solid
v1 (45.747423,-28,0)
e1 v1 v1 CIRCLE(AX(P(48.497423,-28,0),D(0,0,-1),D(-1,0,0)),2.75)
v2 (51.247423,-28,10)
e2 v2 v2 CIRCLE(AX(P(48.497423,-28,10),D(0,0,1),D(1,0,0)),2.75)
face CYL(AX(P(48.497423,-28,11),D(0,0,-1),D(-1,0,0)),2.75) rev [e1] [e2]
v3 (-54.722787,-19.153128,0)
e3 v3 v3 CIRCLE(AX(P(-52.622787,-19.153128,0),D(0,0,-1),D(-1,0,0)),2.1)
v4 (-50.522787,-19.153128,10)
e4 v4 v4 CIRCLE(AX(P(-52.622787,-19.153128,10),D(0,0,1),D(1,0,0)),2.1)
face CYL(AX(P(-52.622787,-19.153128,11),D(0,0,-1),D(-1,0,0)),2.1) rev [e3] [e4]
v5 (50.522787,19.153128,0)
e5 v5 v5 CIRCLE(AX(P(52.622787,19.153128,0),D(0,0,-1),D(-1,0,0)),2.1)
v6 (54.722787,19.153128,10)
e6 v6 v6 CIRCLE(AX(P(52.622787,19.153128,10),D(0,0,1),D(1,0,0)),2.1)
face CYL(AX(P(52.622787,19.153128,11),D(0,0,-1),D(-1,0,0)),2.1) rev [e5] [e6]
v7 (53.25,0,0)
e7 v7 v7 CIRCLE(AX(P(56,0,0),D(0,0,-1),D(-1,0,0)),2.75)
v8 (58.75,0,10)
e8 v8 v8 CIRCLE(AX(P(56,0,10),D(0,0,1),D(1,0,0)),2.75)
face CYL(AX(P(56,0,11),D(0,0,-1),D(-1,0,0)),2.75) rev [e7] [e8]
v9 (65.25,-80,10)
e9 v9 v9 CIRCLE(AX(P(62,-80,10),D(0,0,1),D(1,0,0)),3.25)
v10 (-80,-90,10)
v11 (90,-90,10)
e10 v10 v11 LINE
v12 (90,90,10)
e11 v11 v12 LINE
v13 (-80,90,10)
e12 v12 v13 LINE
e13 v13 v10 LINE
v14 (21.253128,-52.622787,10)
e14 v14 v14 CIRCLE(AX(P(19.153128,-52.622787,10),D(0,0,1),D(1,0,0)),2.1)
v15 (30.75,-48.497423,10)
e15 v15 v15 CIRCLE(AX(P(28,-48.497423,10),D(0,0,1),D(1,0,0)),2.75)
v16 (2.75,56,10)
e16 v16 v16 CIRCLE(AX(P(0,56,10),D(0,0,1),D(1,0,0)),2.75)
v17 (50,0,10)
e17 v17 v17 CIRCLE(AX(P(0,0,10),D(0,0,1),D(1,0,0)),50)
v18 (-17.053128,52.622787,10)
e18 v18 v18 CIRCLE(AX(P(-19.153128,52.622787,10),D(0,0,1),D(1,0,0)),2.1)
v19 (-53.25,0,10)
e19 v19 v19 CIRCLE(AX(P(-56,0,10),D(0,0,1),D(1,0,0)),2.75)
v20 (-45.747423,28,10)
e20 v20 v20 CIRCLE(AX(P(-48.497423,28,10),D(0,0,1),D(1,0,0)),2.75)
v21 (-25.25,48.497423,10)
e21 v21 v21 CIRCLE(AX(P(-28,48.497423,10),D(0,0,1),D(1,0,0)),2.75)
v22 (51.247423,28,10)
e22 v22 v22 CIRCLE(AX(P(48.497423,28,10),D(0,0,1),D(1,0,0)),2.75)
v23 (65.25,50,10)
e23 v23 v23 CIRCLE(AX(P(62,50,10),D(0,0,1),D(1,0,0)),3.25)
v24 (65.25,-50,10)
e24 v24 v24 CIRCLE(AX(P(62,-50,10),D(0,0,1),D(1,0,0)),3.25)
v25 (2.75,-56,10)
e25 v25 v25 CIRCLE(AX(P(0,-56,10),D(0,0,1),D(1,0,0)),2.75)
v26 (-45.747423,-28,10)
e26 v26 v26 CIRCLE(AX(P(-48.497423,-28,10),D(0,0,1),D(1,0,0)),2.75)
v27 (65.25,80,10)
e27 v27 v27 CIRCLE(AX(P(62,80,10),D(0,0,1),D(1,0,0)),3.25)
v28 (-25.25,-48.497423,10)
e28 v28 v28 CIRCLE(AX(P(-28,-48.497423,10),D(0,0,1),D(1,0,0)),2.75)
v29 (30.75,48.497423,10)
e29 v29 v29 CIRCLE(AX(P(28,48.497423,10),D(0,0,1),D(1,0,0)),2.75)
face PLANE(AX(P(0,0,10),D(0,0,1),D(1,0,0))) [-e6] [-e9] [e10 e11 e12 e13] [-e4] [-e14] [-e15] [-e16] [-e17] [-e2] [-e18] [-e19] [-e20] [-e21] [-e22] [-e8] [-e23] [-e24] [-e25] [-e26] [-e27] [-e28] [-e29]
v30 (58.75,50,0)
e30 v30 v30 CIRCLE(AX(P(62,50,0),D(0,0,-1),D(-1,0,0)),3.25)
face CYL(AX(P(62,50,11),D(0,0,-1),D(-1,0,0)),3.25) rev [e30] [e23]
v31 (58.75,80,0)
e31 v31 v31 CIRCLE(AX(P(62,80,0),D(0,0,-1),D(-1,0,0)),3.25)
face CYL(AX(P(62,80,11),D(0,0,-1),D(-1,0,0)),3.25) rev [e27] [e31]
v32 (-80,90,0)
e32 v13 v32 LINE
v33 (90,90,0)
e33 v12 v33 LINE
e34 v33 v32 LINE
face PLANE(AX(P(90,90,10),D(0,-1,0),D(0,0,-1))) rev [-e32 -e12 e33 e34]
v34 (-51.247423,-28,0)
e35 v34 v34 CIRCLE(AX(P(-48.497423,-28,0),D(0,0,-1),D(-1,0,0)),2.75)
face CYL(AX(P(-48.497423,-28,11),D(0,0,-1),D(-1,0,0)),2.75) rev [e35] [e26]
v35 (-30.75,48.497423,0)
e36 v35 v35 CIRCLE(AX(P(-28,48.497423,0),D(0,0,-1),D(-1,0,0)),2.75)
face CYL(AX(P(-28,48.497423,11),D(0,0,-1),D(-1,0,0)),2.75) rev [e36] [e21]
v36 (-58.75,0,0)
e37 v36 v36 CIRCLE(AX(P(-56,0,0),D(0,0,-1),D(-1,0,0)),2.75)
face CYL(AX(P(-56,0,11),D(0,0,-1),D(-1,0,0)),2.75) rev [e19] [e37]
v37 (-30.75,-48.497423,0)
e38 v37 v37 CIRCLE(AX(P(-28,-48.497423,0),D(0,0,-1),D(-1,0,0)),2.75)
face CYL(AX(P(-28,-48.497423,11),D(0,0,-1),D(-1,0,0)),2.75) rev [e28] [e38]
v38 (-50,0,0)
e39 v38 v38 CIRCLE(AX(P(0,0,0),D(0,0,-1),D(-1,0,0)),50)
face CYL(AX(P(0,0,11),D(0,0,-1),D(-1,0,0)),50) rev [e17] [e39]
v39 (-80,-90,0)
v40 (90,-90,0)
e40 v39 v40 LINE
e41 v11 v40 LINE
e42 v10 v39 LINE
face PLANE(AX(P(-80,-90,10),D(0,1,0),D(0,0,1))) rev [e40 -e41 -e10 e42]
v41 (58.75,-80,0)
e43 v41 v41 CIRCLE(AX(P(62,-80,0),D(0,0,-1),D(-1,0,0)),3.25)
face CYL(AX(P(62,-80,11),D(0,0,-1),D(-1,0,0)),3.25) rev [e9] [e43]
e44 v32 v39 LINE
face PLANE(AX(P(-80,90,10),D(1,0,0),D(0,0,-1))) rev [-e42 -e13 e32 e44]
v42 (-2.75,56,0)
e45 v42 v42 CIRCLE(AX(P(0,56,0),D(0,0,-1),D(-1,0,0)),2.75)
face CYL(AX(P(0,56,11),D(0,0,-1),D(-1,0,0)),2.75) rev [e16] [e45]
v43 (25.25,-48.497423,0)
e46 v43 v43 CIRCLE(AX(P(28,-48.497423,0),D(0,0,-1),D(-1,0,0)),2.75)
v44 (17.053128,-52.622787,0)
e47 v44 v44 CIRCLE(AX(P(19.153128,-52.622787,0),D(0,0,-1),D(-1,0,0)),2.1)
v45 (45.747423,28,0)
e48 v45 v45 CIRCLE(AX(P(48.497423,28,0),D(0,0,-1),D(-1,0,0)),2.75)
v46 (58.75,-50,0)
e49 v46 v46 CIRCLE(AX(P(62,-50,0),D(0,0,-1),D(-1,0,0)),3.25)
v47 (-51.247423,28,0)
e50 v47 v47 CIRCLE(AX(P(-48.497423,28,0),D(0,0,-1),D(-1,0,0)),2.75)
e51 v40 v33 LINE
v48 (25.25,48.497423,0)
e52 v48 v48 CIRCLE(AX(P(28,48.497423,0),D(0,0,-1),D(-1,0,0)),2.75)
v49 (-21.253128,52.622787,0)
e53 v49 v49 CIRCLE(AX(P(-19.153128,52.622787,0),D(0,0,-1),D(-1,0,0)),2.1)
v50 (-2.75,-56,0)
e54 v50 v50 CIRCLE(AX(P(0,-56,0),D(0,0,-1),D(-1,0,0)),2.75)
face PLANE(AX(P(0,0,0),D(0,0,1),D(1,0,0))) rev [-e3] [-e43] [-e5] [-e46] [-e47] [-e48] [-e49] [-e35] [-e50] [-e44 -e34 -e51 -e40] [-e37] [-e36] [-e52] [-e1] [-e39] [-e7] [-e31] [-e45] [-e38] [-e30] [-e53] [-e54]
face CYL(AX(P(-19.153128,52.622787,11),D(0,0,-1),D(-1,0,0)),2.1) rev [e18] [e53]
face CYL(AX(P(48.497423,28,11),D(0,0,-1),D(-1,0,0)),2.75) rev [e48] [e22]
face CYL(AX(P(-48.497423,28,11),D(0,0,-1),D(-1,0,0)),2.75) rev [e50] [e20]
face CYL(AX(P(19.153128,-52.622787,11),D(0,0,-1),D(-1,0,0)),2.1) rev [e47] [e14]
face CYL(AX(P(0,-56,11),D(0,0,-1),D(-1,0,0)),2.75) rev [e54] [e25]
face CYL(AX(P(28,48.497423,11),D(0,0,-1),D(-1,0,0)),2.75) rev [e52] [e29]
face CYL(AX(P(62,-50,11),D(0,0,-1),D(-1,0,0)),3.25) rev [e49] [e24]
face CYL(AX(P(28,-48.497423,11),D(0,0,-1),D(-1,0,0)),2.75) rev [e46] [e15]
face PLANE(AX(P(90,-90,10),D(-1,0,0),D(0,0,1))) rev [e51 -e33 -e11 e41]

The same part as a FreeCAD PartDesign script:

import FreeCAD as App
import Part
import Sketcher
Q = App.Units.Quantity


def add_polygon(sketch, points):
    """Adds a closed chain of lines whose ends are joined by coincident constraints."""
    first, n = sketch.GeometryCount, len(points)
    for a, b in zip(points, points[1:] + points[:1]):
        sketch.addGeometry(Part.LineSegment(App.Vector(*a, 0), App.Vector(*b, 0)), False)
    for i in range(n):
        sketch.addConstraint(Sketcher.Constraint("Coincident", first + i, 2, first + (i + 1) % n, 1))

doc = App.newDocument("Part")
params = doc.addObject("Spreadsheet::Sheet", "Params")
for row, (alias, value) in enumerate([
    ("sketch1_width", "170 mm"),
    ("sketch1_height", "180 mm"),
    ("pad1_length", "10 mm"),
    ("sketch2_diameter", "100 mm"),
    ("sketch2_diameter2", "5.5 mm"),
    ("sketch2_diameter3", "4.2 mm"),
    ("sketch2_diameter4", "6.5 mm"),
    ("pocket1_length", "11 mm"),
], start=1):
    params.set(f"A{row}", alias)
    params.set(f"B{row}", "=" + value)
    params.setAlias(f"B{row}", alias)

body = doc.addObject("PartDesign::Body", "Body")

sketch1 = body.newObject("Sketcher::SketchObject", "Sketch")
sketch1.AttachmentSupport = (doc.getObject("XY_Plane"), [""])
sketch1.MapMode = "FlatFace"
add_polygon(sketch1, [(-80, 90), (-80, -90), (90, -90), (90, 90)])
sketch1.addConstraint(Sketcher.Constraint("Vertical", 0))
sketch1.addConstraint(Sketcher.Constraint("Horizontal", 1))
sketch1.addConstraint(Sketcher.Constraint("Vertical", 2))
sketch1.addConstraint(Sketcher.Constraint("Horizontal", 3))
sketch1.addConstraint(Sketcher.Constraint("DistanceX", 1, 1, 1, 2, Q("170 mm")))
sketch1.addConstraint(Sketcher.Constraint("DistanceY", 0, 2, 0, 1, Q("180 mm")))
sketch1.addConstraint(Sketcher.Constraint("DistanceX", 0, 2, -1, 1, Q("80 mm")))
sketch1.addConstraint(Sketcher.Constraint("DistanceY", 0, 2, -1, 1, Q("90 mm")))
sketch1.setExpression("Constraints[8]", "Params.sketch1_width")
sketch1.setExpression("Constraints[9]", "Params.sketch1_height")
pad1 = body.newObject("PartDesign::Pad", "Pad")
pad1.Profile = sketch1
pad1.setExpression("Length", "Params.pad1_length")

sketch2 = body.newObject("Sketcher::SketchObject", "Sketch001")
sketch2.AttachmentSupport = (doc.getObject("XY_Plane"), [""])
sketch2.MapMode = "FlatFace"
sketch2.addGeometry(Part.Circle(App.Vector(0, 0, 0), App.Vector(0, 0, 1), 50), False)
sketch2.addGeometry(Part.Circle(App.Vector(56, 0, 0), App.Vector(0, 0, 1), 2.75), False)
sketch2.addGeometry(Part.Circle(App.Vector(48.497423, 28, 0), App.Vector(0, 0, 1), 2.75), False)
sketch2.addGeometry(Part.Circle(App.Vector(28, 48.497423, 0), App.Vector(0, 0, 1), 2.75), False)
sketch2.addGeometry(Part.Circle(App.Vector(0, 56, 0), App.Vector(0, 0, 1), 2.75), False)
sketch2.addGeometry(Part.Circle(App.Vector(-28, 48.497423, 0), App.Vector(0, 0, 1), 2.75), False)
sketch2.addGeometry(Part.Circle(App.Vector(-48.497423, 28, 0), App.Vector(0, 0, 1), 2.75), False)
sketch2.addGeometry(Part.Circle(App.Vector(-56, 0, 0), App.Vector(0, 0, 1), 2.75), False)
sketch2.addGeometry(Part.Circle(App.Vector(-48.497423, -28, 0), App.Vector(0, 0, 1), 2.75), False)
sketch2.addGeometry(Part.Circle(App.Vector(-28, -48.497423, 0), App.Vector(0, 0, 1), 2.75), False)
sketch2.addGeometry(Part.Circle(App.Vector(0, -56, 0), App.Vector(0, 0, 1), 2.75), False)
sketch2.addGeometry(Part.Circle(App.Vector(28, -48.497423, 0), App.Vector(0, 0, 1), 2.75), False)
sketch2.addGeometry(Part.Circle(App.Vector(48.497423, -28, 0), App.Vector(0, 0, 1), 2.75), False)
sketch2.addGeometry(Part.Circle(App.Vector(52.622787, 19.153128, 0), App.Vector(0, 0, 1), 2.1), False)
sketch2.addGeometry(Part.Circle(App.Vector(-19.153128, 52.622787, 0), App.Vector(0, 0, 1), 2.1), False)
sketch2.addGeometry(Part.Circle(App.Vector(-52.622787, -19.153128, 0), App.Vector(0, 0, 1), 2.1), False)
sketch2.addGeometry(Part.Circle(App.Vector(19.153128, -52.622787, 0), App.Vector(0, 0, 1), 2.1), False)
sketch2.addGeometry(Part.Circle(App.Vector(62, -80, 0), App.Vector(0, 0, 1), 3.25), False)
sketch2.addGeometry(Part.Circle(App.Vector(62, -50, 0), App.Vector(0, 0, 1), 3.25), False)
sketch2.addGeometry(Part.Circle(App.Vector(62, 50, 0), App.Vector(0, 0, 1), 3.25), False)
sketch2.addGeometry(Part.Circle(App.Vector(62, 80, 0), App.Vector(0, 0, 1), 3.25), False)
sketch2.addConstraint(Sketcher.Constraint("Coincident", 0, 3, -1, 1))
sketch2.addConstraint(Sketcher.Constraint("Equal", 1, 2))
sketch2.addConstraint(Sketcher.Constraint("Equal", 2, 3))
sketch2.addConstraint(Sketcher.Constraint("Equal", 3, 4))
sketch2.addConstraint(Sketcher.Constraint("Equal", 4, 5))
sketch2.addConstraint(Sketcher.Constraint("Equal", 5, 6))
sketch2.addConstraint(Sketcher.Constraint("Equal", 6, 7))
sketch2.addConstraint(Sketcher.Constraint("Equal", 7, 8))
sketch2.addConstraint(Sketcher.Constraint("Equal", 8, 9))
sketch2.addConstraint(Sketcher.Constraint("Equal", 9, 10))
sketch2.addConstraint(Sketcher.Constraint("Equal", 10, 11))
sketch2.addConstraint(Sketcher.Constraint("Equal", 11, 12))
sketch2.addConstraint(Sketcher.Constraint("Equal", 13, 14))
sketch2.addConstraint(Sketcher.Constraint("Equal", 14, 15))
sketch2.addConstraint(Sketcher.Constraint("Equal", 15, 16))
sketch2.addConstraint(Sketcher.Constraint("Equal", 17, 18))
sketch2.addConstraint(Sketcher.Constraint("Equal", 18, 19))
sketch2.addConstraint(Sketcher.Constraint("Equal", 19, 20))
sketch2.addConstraint(Sketcher.Constraint("Symmetric", 1, 3, 7, 3, -1, 1))
sketch2.addConstraint(Sketcher.Constraint("Symmetric", 2, 3, 8, 3, -1, 1))
sketch2.addConstraint(Sketcher.Constraint("Symmetric", 3, 3, 9, 3, -1, 1))
sketch2.addConstraint(Sketcher.Constraint("Symmetric", 4, 3, 10, 3, -1, 1))
sketch2.addConstraint(Sketcher.Constraint("Symmetric", 5, 3, 11, 3, -1, 1))
sketch2.addConstraint(Sketcher.Constraint("Symmetric", 6, 3, 12, 3, -1, 1))
sketch2.addConstraint(Sketcher.Constraint("Symmetric", 13, 3, 15, 3, -1, 1))
sketch2.addConstraint(Sketcher.Constraint("Symmetric", 14, 3, 16, 3, -1, 1))
sketch2.addConstraint(Sketcher.Constraint("Symmetric", 3, 3, 5, 3, -2))
sketch2.addConstraint(Sketcher.Constraint("Symmetric", 2, 3, 6, 3, -2))
sketch2.addConstraint(Sketcher.Constraint("Symmetric", 18, 3, 19, 3, -1))
sketch2.addConstraint(Sketcher.Constraint("Symmetric", 17, 3, 20, 3, -1))
sketch2.addConstraint(Sketcher.Constraint("PointOnObject", 1, 3, -1))
sketch2.addConstraint(Sketcher.Constraint("PointOnObject", 4, 3, -2))
sketch2.addConstraint(Sketcher.Constraint("Vertical", 17, 3, 18, 3))
sketch2.addConstraint(Sketcher.Constraint("Diameter", 0, Q("100 mm")))
sketch2.addConstraint(Sketcher.Constraint("Diameter", 1, Q("5.5 mm")))
sketch2.addConstraint(Sketcher.Constraint("Diameter", 13, Q("4.2 mm")))
sketch2.addConstraint(Sketcher.Constraint("Diameter", 17, Q("6.5 mm")))
sketch2.addConstraint(Sketcher.Constraint("DistanceX", -1, 1, 1, 3, Q("56 mm")))
sketch2.addConstraint(Sketcher.Constraint("DistanceY", -1, 1, 2, 3, Q("28 mm")))
sketch2.addConstraint(Sketcher.Constraint("DistanceX", -1, 1, 3, 3, Q("28 mm")))
sketch2.addConstraint(Sketcher.Constraint("DistanceY", -1, 1, 4, 3, Q("56 mm")))
sketch2.addConstraint(Sketcher.Constraint("DistanceX", -1, 1, 17, 3, Q("62 mm")))
sketch2.addConstraint(Sketcher.Constraint("DistanceY", 17, 3, -1, 1, Q("80 mm")))
sketch2.addConstraint(Sketcher.Constraint("DistanceY", 18, 3, -1, 1, Q("50 mm")))
sketch2.addConstraint(Sketcher.Constraint("DistanceY", -1, 1, 13, 3, Q("19.153128 mm")))
sketch2.addConstraint(Sketcher.Constraint("DistanceX", 14, 3, -1, 1, Q("19.153128 mm")))
sketch2.addConstraint(Sketcher.Constraint("DistanceX", -1, 1, 2, 3, Q("48.497423 mm")))
sketch2.addConstraint(Sketcher.Constraint("DistanceY", -1, 1, 3, 3, Q("48.497423 mm")))
sketch2.addConstraint(Sketcher.Constraint("DistanceX", -1, 1, 13, 3, Q("52.622787 mm")))
sketch2.addConstraint(Sketcher.Constraint("DistanceY", -1, 1, 14, 3, Q("52.622787 mm")))
sketch2.setExpression("Constraints[33]", "Params.sketch2_diameter")
sketch2.setExpression("Constraints[34]", "Params.sketch2_diameter2")
sketch2.setExpression("Constraints[35]", "Params.sketch2_diameter3")
sketch2.setExpression("Constraints[36]", "Params.sketch2_diameter4")
pocket1 = body.newObject("PartDesign::Pocket", "Pocket")
pocket1.Profile = sketch2
pocket1.setExpression("Length", "Params.pocket1_length")
pocket1.Reversed = True

doc.recompute()
